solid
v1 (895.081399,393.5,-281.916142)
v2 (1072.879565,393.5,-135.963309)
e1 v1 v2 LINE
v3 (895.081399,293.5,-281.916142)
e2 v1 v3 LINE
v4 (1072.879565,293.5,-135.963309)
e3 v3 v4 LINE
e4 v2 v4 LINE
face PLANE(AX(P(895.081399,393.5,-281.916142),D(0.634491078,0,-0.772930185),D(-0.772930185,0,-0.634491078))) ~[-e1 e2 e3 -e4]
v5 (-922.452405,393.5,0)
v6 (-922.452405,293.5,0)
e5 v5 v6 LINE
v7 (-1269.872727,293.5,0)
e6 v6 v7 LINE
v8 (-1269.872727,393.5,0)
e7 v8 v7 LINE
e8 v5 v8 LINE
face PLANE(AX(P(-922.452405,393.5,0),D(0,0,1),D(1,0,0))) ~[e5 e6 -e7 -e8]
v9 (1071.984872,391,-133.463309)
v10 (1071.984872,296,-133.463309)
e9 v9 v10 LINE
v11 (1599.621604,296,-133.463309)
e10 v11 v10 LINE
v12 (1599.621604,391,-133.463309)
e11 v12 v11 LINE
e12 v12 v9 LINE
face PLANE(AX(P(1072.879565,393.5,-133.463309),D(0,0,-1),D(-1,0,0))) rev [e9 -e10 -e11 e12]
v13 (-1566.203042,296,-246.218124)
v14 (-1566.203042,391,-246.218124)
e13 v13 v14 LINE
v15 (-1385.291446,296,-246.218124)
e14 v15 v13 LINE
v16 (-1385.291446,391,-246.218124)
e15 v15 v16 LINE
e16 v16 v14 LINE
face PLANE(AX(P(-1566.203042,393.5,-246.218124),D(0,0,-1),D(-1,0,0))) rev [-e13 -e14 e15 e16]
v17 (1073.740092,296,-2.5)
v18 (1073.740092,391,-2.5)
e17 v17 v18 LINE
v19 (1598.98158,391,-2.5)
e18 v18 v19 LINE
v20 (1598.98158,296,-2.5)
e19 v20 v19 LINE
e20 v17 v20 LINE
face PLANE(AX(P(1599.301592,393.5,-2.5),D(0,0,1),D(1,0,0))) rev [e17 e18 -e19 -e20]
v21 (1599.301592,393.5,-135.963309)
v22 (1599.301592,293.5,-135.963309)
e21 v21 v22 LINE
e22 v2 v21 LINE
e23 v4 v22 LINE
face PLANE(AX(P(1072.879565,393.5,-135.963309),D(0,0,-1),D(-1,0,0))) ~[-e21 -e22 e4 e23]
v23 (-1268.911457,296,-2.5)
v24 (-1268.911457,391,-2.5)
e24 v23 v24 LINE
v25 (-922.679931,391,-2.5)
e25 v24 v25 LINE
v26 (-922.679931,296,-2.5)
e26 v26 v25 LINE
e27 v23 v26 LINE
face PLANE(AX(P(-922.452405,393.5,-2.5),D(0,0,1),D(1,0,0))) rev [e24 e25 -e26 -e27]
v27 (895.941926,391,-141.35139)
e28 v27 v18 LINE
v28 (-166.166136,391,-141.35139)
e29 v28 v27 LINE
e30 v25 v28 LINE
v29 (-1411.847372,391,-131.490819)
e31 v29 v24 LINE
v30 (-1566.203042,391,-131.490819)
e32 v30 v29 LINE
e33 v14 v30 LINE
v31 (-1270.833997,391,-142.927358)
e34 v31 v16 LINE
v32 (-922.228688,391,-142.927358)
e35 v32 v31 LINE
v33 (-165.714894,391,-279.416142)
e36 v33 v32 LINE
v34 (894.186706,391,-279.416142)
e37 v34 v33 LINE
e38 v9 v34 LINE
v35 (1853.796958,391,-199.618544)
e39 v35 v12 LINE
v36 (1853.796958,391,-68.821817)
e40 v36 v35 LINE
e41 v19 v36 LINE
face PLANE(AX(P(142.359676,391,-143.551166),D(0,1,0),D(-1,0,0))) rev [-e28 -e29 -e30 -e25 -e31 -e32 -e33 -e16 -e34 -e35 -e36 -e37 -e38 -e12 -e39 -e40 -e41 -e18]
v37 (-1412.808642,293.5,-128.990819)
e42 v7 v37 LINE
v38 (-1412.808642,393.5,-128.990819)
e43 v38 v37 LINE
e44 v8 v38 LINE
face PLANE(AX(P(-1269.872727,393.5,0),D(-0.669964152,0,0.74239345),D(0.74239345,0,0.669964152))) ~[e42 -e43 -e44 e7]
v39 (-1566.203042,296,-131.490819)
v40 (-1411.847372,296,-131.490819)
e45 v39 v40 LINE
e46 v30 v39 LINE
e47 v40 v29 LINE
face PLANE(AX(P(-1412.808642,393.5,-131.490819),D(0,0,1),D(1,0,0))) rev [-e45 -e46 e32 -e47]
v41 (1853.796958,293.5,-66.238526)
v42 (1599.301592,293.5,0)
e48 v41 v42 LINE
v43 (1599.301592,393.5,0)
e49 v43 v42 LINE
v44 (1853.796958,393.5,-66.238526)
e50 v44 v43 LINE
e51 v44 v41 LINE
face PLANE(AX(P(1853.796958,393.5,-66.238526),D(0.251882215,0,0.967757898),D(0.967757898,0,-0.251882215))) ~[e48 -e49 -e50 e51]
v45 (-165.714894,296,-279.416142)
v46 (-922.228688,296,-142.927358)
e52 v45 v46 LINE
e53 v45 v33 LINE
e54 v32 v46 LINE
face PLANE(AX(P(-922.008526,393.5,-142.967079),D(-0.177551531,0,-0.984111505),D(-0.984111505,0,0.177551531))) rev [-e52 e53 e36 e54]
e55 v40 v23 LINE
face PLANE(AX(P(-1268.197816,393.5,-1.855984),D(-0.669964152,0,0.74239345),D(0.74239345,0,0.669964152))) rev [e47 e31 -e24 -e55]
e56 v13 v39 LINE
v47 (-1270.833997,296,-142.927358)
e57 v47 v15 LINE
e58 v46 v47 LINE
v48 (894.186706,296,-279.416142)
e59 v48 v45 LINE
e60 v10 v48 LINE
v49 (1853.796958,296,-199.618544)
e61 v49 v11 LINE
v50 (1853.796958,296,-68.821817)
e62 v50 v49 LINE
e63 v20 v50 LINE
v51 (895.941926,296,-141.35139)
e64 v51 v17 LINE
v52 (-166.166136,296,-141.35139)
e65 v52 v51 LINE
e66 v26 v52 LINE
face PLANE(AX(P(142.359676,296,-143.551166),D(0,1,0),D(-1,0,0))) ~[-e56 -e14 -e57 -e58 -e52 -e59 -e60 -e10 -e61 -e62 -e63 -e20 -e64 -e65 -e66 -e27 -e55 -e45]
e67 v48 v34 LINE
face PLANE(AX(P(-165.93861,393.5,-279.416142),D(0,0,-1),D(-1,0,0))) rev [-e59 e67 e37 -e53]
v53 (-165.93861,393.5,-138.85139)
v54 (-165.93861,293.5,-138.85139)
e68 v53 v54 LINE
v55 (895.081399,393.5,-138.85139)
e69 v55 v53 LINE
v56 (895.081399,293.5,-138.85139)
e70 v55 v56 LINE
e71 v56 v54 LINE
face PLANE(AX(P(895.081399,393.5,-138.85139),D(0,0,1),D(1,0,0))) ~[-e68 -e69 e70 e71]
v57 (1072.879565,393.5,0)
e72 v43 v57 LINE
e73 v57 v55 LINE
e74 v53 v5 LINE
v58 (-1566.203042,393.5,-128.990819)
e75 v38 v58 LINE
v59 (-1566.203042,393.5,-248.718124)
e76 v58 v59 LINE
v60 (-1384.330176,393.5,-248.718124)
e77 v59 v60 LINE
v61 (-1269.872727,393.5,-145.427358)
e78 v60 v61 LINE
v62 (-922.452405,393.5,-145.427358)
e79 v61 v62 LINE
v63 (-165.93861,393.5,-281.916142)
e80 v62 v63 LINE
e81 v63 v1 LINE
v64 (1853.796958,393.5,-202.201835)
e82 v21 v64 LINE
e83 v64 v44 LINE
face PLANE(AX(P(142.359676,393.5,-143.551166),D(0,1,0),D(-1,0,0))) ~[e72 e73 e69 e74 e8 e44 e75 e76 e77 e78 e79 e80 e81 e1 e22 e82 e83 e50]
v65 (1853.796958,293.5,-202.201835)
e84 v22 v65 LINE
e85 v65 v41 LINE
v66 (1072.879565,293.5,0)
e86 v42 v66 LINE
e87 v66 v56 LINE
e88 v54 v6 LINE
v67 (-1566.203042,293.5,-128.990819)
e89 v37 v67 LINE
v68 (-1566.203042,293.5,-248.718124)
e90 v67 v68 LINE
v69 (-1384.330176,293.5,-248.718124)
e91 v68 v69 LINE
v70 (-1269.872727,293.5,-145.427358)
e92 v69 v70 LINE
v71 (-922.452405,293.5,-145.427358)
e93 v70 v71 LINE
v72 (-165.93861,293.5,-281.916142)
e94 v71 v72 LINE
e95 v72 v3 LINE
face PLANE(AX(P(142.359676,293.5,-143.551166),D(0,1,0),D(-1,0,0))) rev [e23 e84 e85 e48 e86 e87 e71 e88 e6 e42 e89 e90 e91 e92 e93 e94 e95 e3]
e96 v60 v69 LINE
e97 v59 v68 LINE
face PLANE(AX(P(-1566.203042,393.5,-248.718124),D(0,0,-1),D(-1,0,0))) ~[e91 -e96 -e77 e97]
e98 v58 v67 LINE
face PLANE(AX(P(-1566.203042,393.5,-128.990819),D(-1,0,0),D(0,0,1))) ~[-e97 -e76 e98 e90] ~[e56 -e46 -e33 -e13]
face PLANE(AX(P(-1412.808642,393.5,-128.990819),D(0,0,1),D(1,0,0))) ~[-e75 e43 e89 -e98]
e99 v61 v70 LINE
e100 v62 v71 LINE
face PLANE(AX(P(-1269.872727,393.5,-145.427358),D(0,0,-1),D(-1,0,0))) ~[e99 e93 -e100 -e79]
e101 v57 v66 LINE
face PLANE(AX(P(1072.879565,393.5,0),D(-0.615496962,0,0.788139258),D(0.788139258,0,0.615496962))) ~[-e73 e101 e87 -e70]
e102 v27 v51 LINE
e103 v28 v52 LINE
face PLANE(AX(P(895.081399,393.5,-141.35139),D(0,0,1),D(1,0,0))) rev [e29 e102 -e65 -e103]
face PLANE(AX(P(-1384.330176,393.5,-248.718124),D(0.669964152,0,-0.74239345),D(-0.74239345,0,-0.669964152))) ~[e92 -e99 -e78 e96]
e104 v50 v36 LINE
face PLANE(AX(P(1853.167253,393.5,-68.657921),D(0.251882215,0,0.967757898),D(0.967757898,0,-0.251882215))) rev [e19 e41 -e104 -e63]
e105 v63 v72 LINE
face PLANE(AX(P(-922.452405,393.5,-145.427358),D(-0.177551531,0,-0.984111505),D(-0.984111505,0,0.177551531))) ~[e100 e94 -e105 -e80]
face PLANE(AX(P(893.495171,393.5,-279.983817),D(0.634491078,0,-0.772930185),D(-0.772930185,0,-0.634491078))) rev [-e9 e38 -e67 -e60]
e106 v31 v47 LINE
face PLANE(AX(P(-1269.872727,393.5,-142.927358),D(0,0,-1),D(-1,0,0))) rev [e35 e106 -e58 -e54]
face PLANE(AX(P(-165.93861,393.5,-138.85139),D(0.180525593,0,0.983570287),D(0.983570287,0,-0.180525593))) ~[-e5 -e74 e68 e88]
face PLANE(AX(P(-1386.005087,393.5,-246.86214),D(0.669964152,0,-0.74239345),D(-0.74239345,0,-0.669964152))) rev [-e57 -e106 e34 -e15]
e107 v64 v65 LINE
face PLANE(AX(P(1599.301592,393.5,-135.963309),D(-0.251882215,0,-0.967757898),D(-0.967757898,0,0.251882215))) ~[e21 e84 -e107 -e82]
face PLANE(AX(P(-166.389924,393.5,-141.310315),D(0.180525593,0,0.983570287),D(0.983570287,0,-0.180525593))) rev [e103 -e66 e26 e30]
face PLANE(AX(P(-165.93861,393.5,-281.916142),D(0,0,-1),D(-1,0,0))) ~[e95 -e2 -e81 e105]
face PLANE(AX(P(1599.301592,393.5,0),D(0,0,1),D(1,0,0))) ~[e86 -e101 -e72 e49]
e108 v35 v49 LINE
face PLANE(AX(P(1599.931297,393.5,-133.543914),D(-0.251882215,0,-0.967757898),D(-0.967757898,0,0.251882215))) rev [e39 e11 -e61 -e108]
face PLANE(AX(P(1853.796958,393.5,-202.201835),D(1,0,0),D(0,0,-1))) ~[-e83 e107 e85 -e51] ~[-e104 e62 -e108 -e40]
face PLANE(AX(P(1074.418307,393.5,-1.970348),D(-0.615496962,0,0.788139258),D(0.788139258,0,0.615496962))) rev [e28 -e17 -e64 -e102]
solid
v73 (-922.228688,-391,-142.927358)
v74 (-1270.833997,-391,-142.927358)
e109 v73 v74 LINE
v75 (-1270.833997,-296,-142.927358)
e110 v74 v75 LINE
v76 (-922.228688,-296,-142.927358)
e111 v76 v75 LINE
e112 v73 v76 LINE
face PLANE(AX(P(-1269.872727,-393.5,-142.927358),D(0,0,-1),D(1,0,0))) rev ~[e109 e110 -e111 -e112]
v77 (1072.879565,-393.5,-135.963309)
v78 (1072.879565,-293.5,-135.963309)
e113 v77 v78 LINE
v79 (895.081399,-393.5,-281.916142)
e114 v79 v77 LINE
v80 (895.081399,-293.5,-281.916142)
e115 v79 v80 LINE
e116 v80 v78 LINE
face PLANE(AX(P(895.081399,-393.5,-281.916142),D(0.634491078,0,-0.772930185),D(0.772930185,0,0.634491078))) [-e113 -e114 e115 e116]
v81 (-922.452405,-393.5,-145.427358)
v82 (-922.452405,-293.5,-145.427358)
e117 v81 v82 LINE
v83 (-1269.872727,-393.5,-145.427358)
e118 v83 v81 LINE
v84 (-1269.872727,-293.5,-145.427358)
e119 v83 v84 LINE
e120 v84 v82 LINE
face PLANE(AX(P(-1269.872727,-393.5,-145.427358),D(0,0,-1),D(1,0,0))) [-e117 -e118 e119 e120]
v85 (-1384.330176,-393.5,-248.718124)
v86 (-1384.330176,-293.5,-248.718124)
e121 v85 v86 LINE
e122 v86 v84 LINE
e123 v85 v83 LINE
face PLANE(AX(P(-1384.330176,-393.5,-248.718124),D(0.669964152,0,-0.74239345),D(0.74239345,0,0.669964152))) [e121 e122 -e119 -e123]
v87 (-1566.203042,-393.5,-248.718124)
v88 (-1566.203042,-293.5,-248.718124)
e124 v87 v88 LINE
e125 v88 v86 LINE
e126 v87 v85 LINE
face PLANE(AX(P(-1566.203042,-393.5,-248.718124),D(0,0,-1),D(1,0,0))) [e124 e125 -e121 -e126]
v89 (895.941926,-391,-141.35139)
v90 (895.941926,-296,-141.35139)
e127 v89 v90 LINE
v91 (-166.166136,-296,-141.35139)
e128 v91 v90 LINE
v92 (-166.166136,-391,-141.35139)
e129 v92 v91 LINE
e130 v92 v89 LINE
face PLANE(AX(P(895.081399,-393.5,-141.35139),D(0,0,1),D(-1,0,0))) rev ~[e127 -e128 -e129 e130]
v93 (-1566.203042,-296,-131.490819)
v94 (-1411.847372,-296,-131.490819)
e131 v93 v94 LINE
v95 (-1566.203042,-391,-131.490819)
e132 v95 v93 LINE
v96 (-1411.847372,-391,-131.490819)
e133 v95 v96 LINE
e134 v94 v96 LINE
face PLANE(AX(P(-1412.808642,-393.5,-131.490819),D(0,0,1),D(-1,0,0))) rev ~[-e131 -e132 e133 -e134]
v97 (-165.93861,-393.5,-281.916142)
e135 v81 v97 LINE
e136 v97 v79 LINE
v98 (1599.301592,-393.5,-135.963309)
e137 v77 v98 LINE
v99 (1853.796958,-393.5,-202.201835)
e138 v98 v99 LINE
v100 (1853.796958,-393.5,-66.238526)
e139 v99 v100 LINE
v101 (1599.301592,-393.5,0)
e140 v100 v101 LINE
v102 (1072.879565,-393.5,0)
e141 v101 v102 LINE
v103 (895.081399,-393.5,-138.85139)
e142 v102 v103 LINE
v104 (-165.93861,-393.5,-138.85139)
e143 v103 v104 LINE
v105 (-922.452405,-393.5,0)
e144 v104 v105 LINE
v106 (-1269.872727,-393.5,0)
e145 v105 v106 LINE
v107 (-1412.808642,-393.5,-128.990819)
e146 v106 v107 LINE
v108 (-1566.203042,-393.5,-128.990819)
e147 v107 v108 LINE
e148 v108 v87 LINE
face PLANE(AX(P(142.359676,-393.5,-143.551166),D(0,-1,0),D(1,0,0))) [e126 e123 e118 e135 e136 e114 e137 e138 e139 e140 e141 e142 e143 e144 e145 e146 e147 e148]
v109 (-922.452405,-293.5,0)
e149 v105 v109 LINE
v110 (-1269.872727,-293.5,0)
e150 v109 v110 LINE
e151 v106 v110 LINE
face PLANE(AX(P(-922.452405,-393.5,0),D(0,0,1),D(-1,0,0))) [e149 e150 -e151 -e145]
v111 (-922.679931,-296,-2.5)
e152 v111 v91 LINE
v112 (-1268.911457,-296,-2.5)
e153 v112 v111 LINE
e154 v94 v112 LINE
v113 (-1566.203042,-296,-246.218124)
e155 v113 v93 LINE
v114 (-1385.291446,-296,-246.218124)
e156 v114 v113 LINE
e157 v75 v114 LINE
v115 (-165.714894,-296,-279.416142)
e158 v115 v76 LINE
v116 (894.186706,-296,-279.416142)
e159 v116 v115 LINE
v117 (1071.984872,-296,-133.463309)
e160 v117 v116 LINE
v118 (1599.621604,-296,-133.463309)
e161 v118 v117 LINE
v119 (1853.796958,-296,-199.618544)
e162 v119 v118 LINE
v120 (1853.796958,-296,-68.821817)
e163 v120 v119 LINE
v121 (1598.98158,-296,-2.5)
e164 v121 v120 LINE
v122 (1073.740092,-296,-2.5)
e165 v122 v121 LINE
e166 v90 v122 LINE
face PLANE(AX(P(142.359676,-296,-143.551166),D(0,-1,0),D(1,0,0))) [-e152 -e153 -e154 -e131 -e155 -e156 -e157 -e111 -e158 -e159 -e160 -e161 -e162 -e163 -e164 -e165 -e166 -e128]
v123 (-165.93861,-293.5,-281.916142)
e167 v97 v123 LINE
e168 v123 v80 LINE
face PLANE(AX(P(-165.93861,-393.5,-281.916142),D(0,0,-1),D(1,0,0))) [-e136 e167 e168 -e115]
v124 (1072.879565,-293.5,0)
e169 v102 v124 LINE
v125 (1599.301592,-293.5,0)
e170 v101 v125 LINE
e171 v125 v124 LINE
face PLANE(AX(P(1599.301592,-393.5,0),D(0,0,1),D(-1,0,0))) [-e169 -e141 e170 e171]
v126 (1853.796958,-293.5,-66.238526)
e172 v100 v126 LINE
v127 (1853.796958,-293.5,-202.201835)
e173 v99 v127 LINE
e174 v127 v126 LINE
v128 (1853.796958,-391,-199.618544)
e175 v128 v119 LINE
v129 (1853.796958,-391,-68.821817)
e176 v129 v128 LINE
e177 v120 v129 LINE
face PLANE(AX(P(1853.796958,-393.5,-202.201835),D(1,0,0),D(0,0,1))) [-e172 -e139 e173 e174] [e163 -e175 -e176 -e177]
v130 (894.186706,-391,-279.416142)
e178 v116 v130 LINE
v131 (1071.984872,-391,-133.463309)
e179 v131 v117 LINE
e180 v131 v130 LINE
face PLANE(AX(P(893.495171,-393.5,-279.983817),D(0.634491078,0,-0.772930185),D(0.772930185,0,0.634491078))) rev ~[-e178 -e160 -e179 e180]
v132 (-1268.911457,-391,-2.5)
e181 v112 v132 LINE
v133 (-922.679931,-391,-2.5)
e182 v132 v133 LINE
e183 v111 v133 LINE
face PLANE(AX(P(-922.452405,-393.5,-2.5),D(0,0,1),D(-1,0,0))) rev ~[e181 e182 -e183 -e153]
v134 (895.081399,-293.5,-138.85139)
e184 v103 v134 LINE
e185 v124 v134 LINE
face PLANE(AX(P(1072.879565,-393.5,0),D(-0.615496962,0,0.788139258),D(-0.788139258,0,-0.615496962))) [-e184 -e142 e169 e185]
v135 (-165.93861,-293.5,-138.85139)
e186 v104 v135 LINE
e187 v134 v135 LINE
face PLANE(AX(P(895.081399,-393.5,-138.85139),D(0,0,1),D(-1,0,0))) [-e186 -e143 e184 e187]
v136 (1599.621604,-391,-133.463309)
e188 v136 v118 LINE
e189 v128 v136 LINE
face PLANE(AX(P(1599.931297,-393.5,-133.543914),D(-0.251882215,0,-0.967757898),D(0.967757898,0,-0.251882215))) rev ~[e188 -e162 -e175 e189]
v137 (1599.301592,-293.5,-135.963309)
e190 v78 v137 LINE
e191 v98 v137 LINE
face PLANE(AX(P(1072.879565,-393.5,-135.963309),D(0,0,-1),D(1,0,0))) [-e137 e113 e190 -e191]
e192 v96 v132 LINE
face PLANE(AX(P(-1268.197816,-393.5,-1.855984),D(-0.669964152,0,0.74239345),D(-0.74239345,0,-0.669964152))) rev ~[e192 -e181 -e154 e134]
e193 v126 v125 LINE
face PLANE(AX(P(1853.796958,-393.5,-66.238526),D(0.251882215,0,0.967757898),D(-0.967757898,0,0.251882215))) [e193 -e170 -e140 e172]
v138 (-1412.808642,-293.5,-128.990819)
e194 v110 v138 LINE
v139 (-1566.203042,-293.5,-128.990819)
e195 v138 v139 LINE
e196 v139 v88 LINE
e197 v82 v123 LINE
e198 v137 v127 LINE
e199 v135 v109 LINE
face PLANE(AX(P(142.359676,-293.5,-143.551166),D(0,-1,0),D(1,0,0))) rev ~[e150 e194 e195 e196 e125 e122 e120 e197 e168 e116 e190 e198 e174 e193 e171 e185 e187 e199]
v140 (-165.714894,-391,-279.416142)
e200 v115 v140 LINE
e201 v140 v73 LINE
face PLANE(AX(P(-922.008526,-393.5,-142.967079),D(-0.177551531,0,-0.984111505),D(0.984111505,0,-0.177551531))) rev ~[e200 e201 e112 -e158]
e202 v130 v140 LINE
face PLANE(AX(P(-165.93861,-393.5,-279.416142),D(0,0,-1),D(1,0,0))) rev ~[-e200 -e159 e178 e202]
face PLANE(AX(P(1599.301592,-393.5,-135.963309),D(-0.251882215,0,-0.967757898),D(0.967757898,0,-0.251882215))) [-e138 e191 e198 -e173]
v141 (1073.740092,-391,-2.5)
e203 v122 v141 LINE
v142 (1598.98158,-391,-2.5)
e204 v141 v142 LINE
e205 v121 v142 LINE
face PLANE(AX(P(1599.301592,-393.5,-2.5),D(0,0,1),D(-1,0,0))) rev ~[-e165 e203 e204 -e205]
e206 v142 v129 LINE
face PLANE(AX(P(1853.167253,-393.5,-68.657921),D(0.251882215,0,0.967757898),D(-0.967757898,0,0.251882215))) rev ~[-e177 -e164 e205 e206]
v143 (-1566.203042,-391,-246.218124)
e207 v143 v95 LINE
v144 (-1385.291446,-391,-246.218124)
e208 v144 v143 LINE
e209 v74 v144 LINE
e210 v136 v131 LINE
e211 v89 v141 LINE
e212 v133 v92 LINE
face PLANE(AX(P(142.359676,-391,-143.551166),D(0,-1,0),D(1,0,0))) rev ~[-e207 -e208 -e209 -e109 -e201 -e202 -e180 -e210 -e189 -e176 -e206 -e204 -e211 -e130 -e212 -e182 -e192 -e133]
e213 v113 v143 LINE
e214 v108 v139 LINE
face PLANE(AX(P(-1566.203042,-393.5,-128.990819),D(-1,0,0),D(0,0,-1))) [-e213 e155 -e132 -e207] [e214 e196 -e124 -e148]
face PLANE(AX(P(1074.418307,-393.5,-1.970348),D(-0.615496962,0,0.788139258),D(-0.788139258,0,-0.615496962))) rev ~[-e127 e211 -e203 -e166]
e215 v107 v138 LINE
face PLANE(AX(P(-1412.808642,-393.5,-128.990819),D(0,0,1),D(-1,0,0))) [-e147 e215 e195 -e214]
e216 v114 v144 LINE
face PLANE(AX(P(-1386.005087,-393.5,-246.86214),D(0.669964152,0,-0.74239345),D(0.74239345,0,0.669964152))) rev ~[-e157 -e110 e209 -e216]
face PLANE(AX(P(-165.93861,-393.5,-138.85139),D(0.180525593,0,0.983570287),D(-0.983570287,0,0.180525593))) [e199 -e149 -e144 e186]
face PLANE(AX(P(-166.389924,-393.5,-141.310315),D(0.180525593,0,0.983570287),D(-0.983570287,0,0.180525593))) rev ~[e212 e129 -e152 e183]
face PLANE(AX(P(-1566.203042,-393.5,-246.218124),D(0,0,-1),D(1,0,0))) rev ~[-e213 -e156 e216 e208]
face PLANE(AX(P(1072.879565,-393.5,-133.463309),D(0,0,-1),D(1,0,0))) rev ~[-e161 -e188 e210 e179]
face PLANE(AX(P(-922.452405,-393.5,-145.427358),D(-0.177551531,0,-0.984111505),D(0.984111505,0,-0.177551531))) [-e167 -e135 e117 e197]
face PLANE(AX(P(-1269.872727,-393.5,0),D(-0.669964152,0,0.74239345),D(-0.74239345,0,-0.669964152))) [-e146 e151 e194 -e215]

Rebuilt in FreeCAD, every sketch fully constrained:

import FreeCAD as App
import Part
import Sketcher
from FreeCAD import Vector
Q = App.Units.Quantity


def faces_at(feature, points):
    """Names of the faces that lie closest to the given points."""
    faces = feature.Shape.Faces
    near = lambda p: min(range(len(faces)), key=lambda i: faces[i].distToShape(Part.Vertex(*p))[0])
    return sorted({f"Face{near(p) + 1}" for p in points})


def add_polygon(sketch, points):
    """Adds a closed chain of lines whose ends are joined by coincident constraints."""
    first, n = sketch.GeometryCount, len(points)
    for a, b in zip(points, points[1:] + points[:1]):
        sketch.addGeometry(Part.LineSegment(App.Vector(*a, 0), App.Vector(*b, 0)), False)
    for i in range(n):
        sketch.addConstraint(Sketcher.Constraint("Coincident", first + i, 2, first + (i + 1) % n, 1))

doc = App.newDocument("Part")
body = doc.addObject("PartDesign::Body", "Body")

# Sketch on XZ plane
sketch1 = doc.addObject("Sketcher::SketchObject", "Sketch")
body.addObject(sketch1)
sketch1.AttachmentSupport = (doc.XZ_Plane, [""])
sketch1.MapMode = "FlatFace"
sketch1.AttachmentOffset = App.Placement(Vector(0, 0, 393.5), App.Rotation())
add_polygon(sketch1, [(-1413, -129), (-1566, -129), (-1566, -249), (-1384, -249), (-1270, -145), (-922, -145), (-166, -282), (895, -282), (1073, -136), (1599, -136), (1854, -202), (1854, -66), (1599, 0), (1073, 0), (895, -139), (-166, -139), (-922, 0), (-1270, 0)])  # lines 0-17
sketch1.addConstraint([
    Sketcher.Constraint("Horizontal", 0),
    Sketcher.Constraint("Vertical", 1),
    Sketcher.Constraint("Horizontal", 2),
    Sketcher.Constraint("Horizontal", 4),
    Sketcher.Constraint("Horizontal", 6),
    Sketcher.Constraint("Horizontal", 8),
    Sketcher.Constraint("Vertical", 10),
    Sketcher.Constraint("Horizontal", 12),
    Sketcher.Constraint("Horizontal", 14),
    Sketcher.Constraint("Horizontal", 16),
    Sketcher.Constraint("PointOnObject", 11, 2, -1),
    Sketcher.Constraint("PointOnObject", 15, 2, -1),
    Sketcher.Constraint("Parallel", 9, 11),
    Sketcher.Constraint("Parallel", 3, 17),
    Sketcher.Constraint("Vertical", 8, 2, 11, 2),
    Sketcher.Constraint("Vertical", 7, 2, 12, 2),
    Sketcher.Constraint("Vertical", 6, 2, 13, 2),
    Sketcher.Constraint("Vertical", 5, 2, 14, 2),
    Sketcher.Constraint("Vertical", 4, 2, 15, 2),
    Sketcher.Constraint("Vertical", 3, 2, 16, 2),
    Sketcher.Constraint("DistanceX", 0, 2, 0, 1, Q("153.3944 mm")),
    Sketcher.Constraint("DistanceX", 4, 1, 4, 2, Q("347.420322 mm")),
    Sketcher.Constraint("DistanceX", 6, 1, 6, 2, Q("1061.020009 mm")),
    Sketcher.Constraint("DistanceY", 10, 1, 10, 2, Q("135.963309 mm")),
    Sketcher.Constraint("DistanceX", -1, 1, 6, 2, Q("895.081399 mm")),
    Sketcher.Constraint("Distance", 3, Q("154.173571 mm")),
    Sketcher.Constraint("Distance", 5, Q("768.727722 mm")),
    Sketcher.Constraint("Distance", 7, Q("230.03134 mm")),
    Sketcher.Constraint("Distance", 15, Q("769.15072 mm")),
    Sketcher.Constraint("Distance", 17, Q("192.533912 mm")),
    Sketcher.Constraint("DistanceX", 2, 1, 2, 2, Q("181.872866 mm")),
    Sketcher.Constraint("DistanceX", 8, 1, 8, 2, Q("526.422027 mm")),
    Sketcher.Constraint("DistanceY", 1, 2, 1, 1, Q("119.727305 mm")),
    Sketcher.Constraint("DistanceX", 0, 2, -1, 1, Q("1566.203042 mm")),
    Sketcher.Constraint("DistanceX", -1, 1, 9, 2, Q("1853.796958 mm")),
    Sketcher.Constraint("Distance", 9, Q("262.974208 mm")),
])
pad1 = doc.addObject("PartDesign::Pad", "Pad")
body.addObject(pad1)
pad1.Profile = sketch1
pad1.Length = 100
pad1.Reversed = True
doc.recompute()

thickness = doc.addObject("PartDesign::Thickness", "Thickness")
body.addObject(thickness)
thickness.Base = (pad1, faces_at(pad1, [(-1566.203, -343.5, -188.854), (1853.797, -343.5, -134.22)]))
thickness.Value = 2.5
thickness.Reversed = True
thickness.Join = "Intersection"
body2 = doc.addObject("PartDesign::Body", "Body001")
doc.recompute()

mirroring = doc.addObject("Part::Mirroring", "Mirroring")
mirroring.Source = body
mirroring.Base = Vector(0, 0, 0)
mirroring.Normal = Vector(0, -1, 0)
body2.BaseFeature = mirroring
doc.recompute()
mirroring.Visibility = False

doc.recompute()
